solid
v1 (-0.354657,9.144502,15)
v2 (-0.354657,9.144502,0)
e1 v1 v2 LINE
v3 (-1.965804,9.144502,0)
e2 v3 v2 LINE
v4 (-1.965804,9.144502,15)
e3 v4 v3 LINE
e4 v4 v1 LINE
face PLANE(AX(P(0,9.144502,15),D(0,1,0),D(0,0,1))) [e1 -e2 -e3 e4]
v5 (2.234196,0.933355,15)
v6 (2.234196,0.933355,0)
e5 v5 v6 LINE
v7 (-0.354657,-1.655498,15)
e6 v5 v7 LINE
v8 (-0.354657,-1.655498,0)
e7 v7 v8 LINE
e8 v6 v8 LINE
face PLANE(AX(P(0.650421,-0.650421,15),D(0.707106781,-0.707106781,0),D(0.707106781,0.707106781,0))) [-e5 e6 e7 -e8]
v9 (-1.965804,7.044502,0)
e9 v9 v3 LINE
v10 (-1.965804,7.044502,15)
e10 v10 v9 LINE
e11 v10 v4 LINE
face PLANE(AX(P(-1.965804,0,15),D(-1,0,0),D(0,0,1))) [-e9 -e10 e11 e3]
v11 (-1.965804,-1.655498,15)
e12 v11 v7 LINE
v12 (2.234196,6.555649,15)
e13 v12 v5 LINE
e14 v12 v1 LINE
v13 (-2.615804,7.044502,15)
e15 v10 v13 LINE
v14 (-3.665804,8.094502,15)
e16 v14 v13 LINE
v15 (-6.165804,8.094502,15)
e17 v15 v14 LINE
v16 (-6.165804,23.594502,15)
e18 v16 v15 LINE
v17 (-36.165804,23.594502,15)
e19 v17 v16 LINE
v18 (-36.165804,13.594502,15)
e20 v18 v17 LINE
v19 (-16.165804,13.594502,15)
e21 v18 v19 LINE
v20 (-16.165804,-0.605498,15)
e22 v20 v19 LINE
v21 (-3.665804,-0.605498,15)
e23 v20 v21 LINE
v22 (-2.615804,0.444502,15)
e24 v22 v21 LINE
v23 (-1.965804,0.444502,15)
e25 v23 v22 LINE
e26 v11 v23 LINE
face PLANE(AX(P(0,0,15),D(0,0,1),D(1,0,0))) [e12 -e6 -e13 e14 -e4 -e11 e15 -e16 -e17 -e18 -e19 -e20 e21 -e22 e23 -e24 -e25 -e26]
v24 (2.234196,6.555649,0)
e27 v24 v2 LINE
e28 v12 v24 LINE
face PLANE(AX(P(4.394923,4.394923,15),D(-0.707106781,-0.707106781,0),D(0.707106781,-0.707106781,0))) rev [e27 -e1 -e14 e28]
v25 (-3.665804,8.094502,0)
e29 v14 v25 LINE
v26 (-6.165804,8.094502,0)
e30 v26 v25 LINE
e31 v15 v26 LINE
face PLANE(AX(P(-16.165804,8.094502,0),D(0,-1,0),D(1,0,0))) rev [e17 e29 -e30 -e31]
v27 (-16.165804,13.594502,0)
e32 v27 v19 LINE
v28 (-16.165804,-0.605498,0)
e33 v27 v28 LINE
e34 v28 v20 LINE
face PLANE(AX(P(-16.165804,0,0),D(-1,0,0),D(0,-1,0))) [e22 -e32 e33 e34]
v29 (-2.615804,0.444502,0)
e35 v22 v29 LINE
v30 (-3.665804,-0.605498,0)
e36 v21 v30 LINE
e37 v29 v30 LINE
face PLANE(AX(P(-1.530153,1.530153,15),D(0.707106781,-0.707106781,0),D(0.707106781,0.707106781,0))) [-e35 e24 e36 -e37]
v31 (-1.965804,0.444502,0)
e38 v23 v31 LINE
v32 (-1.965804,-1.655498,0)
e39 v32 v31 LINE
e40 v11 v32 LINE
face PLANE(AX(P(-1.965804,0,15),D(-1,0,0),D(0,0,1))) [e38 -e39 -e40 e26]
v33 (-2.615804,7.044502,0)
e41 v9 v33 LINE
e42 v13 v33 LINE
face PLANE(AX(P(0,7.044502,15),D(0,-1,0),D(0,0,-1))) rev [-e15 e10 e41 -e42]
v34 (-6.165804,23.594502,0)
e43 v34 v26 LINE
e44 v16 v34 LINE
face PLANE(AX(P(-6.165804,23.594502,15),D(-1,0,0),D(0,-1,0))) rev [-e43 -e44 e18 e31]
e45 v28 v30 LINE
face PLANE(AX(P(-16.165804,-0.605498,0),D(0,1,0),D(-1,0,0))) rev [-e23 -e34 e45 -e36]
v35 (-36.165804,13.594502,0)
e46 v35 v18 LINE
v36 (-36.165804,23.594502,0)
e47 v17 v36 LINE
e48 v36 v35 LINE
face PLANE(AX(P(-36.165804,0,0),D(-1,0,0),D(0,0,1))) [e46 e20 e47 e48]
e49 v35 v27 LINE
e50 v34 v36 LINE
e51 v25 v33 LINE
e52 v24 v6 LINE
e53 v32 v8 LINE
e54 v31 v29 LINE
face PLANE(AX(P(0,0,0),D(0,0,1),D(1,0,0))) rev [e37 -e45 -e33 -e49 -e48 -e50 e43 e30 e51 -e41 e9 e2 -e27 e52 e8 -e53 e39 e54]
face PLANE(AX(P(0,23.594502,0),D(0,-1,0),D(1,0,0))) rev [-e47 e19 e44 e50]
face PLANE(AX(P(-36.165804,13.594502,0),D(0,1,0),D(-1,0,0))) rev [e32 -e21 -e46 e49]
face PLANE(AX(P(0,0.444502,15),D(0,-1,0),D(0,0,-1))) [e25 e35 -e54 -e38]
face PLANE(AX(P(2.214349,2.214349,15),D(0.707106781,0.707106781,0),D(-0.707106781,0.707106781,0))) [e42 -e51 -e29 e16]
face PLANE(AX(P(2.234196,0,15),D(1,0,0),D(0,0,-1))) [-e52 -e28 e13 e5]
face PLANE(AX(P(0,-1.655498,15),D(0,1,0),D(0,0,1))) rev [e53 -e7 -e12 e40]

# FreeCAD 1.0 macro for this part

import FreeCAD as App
import Part
import Sketcher

V = App.Vector
Q = App.Units.Quantity


def add_polygon(sketch, points):
    """Adds a closed chain of lines whose ends are joined by coincident constraints."""
    first, n = sketch.GeometryCount, len(points)
    for a, b in zip(points, points[1:] + points[:1]):
        sketch.addGeometry(Part.LineSegment(App.Vector(*a, 0), App.Vector(*b, 0)), False)
    for i in range(n):
        sketch.addConstraint(Sketcher.Constraint("Coincident", first + i, 2, first + (i + 1) % n, 1))

doc = App.newDocument("Part")
params = doc.addObject("Spreadsheet::Sheet", "Params")
for row, (alias, value) in enumerate([
    ("sketch1_height", "8.7 mm"),
    ("sketch1_height2", "2.1 mm"),
    ("sketch1_width", "0.65 mm"),
    ("pad1_length", "15 mm"),
    ("sketch2_height", "15 mm"),
    ("sketch2_width", "8.7 mm"),
    ("pad2_length", "12.5 mm"),
    ("sketch3_width", "10 mm"),
    ("sketch3_height", "15 mm"),
    ("pad3_length", "15.5 mm"),
    ("sketch4_width", "10 mm"),
    ("sketch4_height", "15 mm"),
    ("pad4_length", "20 mm"),
], start=1):
    params.set(f"A{row}", alias)
    params.set(f"B{row}", "=" + value)
    params.setAlias(f"B{row}", alias)

body = doc.addObject("PartDesign::Body", "Body")

# Sketch on XY plane
sketch1 = body.newObject("Sketcher::SketchObject", "Sketch")
sketch1.AttachmentSupport = (doc.getObject("XY_Plane"), [""])
sketch1.MapMode = "FlatFace"
add_polygon(sketch1, [(-3.7, 8.1), (-3.7, -0.6), (-2.6, 0.4), (-2, 0.4), (-2, -1.7), (-0.4, -1.7), (2.2, 0.9), (2.2, 6.6), (-0.4, 9.1), (-2, 9.1), (-2, 7), (-2.6, 7)])  # lines 0-11
sketch1.addConstraint(Sketcher.Constraint("Vertical", 0))
sketch1.addConstraint(Sketcher.Constraint("Horizontal", 2))
sketch1.addConstraint(Sketcher.Constraint("Vertical", 3))
sketch1.addConstraint(Sketcher.Constraint("Horizontal", 4))
sketch1.addConstraint(Sketcher.Constraint("Vertical", 6))
sketch1.addConstraint(Sketcher.Constraint("Horizontal", 8))
sketch1.addConstraint(Sketcher.Constraint("Vertical", 9))
sketch1.addConstraint(Sketcher.Constraint("Horizontal", 10))
sketch1.addConstraint(Sketcher.Constraint("Parallel", 1, 5))
sketch1.addConstraint(Sketcher.Constraint("Perpendicular", 5, 7))
sketch1.addConstraint(Sketcher.Constraint("Parallel", 7, 11))
sketch1.addConstraint(Sketcher.Constraint("Vertical", 4, 2, 7, 2))
sketch1.addConstraint(Sketcher.Constraint("Vertical", 3, 2, 8, 2))
sketch1.addConstraint(Sketcher.Constraint("Vertical", 1, 2, 10, 2))
sketch1.addConstraint(Sketcher.Constraint("Equal", 3, 9))
sketch1.addConstraint(Sketcher.Constraint("Equal", 5, 7))
sketch1.addConstraint(Sketcher.Constraint("DistanceY", 0, 2, 0, 1, Q("8.7 mm")))
sketch1.addConstraint(Sketcher.Constraint("DistanceY", 3, 2, 3, 1, Q("2.1 mm")))
sketch1.addConstraint(Sketcher.Constraint("DistanceX", 2, 1, 2, 2, Q("0.65 mm")))
sketch1.addConstraint(Sketcher.Constraint("DistanceX", 0, 2, 2, 2, Q("1.7 mm")))
sketch1.addConstraint(Sketcher.Constraint("DistanceX", 2, 2, 5, 2, Q("4.2 mm")))
sketch1.addConstraint(Sketcher.Constraint("Distance", 5, Q("3.661191 mm")))
sketch1.addConstraint(Sketcher.Constraint("DistanceY", -1, 1, 6, 2, Q("6.555649 mm")))
sketch1.addConstraint(Sketcher.Constraint("DistanceX", 0, 2, -1, 1, Q("3.665804 mm")))
sketch1.setExpression("Constraints[28]", "Params.sketch1_height")
sketch1.setExpression("Constraints[29]", "Params.sketch1_height2")
sketch1.setExpression("Constraints[30]", "Params.sketch1_width")
pad1 = body.newObject("PartDesign::Pad", "Pad")
pad1.Profile = sketch1
pad1.setExpression("Length", "Params.pad1_length")

# Sketch on YZ plane
sketch2 = body.newObject("Sketcher::SketchObject", "Sketch001")
sketch2.AttachmentSupport = (doc.getObject("YZ_Plane"), [""])
sketch2.MapMode = "FlatFace"
sketch2.AttachmentOffset = App.Placement(V(0, 0, -3.665804), App.Rotation())
add_polygon(sketch2, [(8, 0), (-1, 0), (-1, 15), (8, 15)])  # lines 0-3
sketch2.addConstraint(Sketcher.Constraint("Horizontal", 0))
sketch2.addConstraint(Sketcher.Constraint("Vertical", 1))
sketch2.addConstraint(Sketcher.Constraint("Horizontal", 2))
sketch2.addConstraint(Sketcher.Constraint("Vertical", 3))
sketch2.addConstraint(Sketcher.Constraint("PointOnObject", 0, 2, -1))
sketch2.addConstraint(Sketcher.Constraint("DistanceY", 1, 1, 1, 2, Q("15 mm")))
sketch2.addConstraint(Sketcher.Constraint("DistanceX", 0, 2, 0, 1, Q("8.7 mm")))
sketch2.addConstraint(Sketcher.Constraint("DistanceX", 0, 2, -1, 1, Q("0.605498 mm")))
sketch2.setExpression("Constraints[9]", "Params.sketch2_height")
sketch2.setExpression("Constraints[10]", "Params.sketch2_width")
pad2 = body.newObject("PartDesign::Pad", "Pad001")
pad2.Profile = sketch2
pad2.setExpression("Length", "Params.pad2_length")
pad2.Reversed = True

# Sketch on XZ plane
sketch3 = body.newObject("Sketcher::SketchObject", "Sketch002")
sketch3.AttachmentSupport = (doc.getObject("XZ_Plane"), [""])
sketch3.MapMode = "FlatFace"
sketch3.AttachmentOffset = App.Placement(V(0, 0, -8.094502), App.Rotation())
add_polygon(sketch3, [(-16, 0), (-16, 15), (-6, 15), (-6, 0)])  # lines 0-3
sketch3.addConstraint(Sketcher.Constraint("Vertical", 0))
sketch3.addConstraint(Sketcher.Constraint("Horizontal", 1))
sketch3.addConstraint(Sketcher.Constraint("Vertical", 2))
sketch3.addConstraint(Sketcher.Constraint("Horizontal", 3))
sketch3.addConstraint(Sketcher.Constraint("PointOnObject", 2, 2, -1))
sketch3.addConstraint(Sketcher.Constraint("DistanceX", 1, 1, 1, 2, Q("10 mm")))
sketch3.addConstraint(Sketcher.Constraint("DistanceY", 0, 1, 0, 2, Q("15 mm")))
sketch3.addConstraint(Sketcher.Constraint("DistanceX", 0, 2, -1, 1, Q("16.165804 mm")))
sketch3.setExpression("Constraints[9]", "Params.sketch3_width")
sketch3.setExpression("Constraints[10]", "Params.sketch3_height")
pad3 = body.newObject("PartDesign::Pad", "Pad002")
pad3.Profile = sketch3
pad3.setExpression("Length", "Params.pad3_length")
pad3.Reversed = True

# Sketch on YZ plane
sketch4 = body.newObject("Sketcher::SketchObject", "Sketch003")
sketch4.AttachmentSupport = (doc.getObject("YZ_Plane"), [""])
sketch4.MapMode = "FlatFace"
sketch4.AttachmentOffset = App.Placement(V(0, 0, -16.165804), App.Rotation())
add_polygon(sketch4, [(24, 0), (14, 0), (14, 15), (24, 15)])  # lines 0-3
sketch4.addConstraint(Sketcher.Constraint("Horizontal", 0))
sketch4.addConstraint(Sketcher.Constraint("Vertical", 1))
sketch4.addConstraint(Sketcher.Constraint("Horizontal", 2))
sketch4.addConstraint(Sketcher.Constraint("Vertical", 3))
sketch4.addConstraint(Sketcher.Constraint("PointOnObject", 0, 2, -1))
sketch4.addConstraint(Sketcher.Constraint("DistanceX", 0, 2, 0, 1, Q("10 mm")))
sketch4.addConstraint(Sketcher.Constraint("DistanceY", 1, 1, 1, 2, Q("15 mm")))
sketch4.addConstraint(Sketcher.Constraint("DistanceX", -1, 1, 0, 2, Q("13.594502 mm")))
sketch4.setExpression("Constraints[9]", "Params.sketch4_width")
sketch4.setExpression("Constraints[10]", "Params.sketch4_height")
pad4 = body.newObject("PartDesign::Pad", "Pad003")
pad4.Profile = sketch4
pad4.setExpression("Length", "Params.pad4_length")
pad4.Reversed = True

doc.recompute()
